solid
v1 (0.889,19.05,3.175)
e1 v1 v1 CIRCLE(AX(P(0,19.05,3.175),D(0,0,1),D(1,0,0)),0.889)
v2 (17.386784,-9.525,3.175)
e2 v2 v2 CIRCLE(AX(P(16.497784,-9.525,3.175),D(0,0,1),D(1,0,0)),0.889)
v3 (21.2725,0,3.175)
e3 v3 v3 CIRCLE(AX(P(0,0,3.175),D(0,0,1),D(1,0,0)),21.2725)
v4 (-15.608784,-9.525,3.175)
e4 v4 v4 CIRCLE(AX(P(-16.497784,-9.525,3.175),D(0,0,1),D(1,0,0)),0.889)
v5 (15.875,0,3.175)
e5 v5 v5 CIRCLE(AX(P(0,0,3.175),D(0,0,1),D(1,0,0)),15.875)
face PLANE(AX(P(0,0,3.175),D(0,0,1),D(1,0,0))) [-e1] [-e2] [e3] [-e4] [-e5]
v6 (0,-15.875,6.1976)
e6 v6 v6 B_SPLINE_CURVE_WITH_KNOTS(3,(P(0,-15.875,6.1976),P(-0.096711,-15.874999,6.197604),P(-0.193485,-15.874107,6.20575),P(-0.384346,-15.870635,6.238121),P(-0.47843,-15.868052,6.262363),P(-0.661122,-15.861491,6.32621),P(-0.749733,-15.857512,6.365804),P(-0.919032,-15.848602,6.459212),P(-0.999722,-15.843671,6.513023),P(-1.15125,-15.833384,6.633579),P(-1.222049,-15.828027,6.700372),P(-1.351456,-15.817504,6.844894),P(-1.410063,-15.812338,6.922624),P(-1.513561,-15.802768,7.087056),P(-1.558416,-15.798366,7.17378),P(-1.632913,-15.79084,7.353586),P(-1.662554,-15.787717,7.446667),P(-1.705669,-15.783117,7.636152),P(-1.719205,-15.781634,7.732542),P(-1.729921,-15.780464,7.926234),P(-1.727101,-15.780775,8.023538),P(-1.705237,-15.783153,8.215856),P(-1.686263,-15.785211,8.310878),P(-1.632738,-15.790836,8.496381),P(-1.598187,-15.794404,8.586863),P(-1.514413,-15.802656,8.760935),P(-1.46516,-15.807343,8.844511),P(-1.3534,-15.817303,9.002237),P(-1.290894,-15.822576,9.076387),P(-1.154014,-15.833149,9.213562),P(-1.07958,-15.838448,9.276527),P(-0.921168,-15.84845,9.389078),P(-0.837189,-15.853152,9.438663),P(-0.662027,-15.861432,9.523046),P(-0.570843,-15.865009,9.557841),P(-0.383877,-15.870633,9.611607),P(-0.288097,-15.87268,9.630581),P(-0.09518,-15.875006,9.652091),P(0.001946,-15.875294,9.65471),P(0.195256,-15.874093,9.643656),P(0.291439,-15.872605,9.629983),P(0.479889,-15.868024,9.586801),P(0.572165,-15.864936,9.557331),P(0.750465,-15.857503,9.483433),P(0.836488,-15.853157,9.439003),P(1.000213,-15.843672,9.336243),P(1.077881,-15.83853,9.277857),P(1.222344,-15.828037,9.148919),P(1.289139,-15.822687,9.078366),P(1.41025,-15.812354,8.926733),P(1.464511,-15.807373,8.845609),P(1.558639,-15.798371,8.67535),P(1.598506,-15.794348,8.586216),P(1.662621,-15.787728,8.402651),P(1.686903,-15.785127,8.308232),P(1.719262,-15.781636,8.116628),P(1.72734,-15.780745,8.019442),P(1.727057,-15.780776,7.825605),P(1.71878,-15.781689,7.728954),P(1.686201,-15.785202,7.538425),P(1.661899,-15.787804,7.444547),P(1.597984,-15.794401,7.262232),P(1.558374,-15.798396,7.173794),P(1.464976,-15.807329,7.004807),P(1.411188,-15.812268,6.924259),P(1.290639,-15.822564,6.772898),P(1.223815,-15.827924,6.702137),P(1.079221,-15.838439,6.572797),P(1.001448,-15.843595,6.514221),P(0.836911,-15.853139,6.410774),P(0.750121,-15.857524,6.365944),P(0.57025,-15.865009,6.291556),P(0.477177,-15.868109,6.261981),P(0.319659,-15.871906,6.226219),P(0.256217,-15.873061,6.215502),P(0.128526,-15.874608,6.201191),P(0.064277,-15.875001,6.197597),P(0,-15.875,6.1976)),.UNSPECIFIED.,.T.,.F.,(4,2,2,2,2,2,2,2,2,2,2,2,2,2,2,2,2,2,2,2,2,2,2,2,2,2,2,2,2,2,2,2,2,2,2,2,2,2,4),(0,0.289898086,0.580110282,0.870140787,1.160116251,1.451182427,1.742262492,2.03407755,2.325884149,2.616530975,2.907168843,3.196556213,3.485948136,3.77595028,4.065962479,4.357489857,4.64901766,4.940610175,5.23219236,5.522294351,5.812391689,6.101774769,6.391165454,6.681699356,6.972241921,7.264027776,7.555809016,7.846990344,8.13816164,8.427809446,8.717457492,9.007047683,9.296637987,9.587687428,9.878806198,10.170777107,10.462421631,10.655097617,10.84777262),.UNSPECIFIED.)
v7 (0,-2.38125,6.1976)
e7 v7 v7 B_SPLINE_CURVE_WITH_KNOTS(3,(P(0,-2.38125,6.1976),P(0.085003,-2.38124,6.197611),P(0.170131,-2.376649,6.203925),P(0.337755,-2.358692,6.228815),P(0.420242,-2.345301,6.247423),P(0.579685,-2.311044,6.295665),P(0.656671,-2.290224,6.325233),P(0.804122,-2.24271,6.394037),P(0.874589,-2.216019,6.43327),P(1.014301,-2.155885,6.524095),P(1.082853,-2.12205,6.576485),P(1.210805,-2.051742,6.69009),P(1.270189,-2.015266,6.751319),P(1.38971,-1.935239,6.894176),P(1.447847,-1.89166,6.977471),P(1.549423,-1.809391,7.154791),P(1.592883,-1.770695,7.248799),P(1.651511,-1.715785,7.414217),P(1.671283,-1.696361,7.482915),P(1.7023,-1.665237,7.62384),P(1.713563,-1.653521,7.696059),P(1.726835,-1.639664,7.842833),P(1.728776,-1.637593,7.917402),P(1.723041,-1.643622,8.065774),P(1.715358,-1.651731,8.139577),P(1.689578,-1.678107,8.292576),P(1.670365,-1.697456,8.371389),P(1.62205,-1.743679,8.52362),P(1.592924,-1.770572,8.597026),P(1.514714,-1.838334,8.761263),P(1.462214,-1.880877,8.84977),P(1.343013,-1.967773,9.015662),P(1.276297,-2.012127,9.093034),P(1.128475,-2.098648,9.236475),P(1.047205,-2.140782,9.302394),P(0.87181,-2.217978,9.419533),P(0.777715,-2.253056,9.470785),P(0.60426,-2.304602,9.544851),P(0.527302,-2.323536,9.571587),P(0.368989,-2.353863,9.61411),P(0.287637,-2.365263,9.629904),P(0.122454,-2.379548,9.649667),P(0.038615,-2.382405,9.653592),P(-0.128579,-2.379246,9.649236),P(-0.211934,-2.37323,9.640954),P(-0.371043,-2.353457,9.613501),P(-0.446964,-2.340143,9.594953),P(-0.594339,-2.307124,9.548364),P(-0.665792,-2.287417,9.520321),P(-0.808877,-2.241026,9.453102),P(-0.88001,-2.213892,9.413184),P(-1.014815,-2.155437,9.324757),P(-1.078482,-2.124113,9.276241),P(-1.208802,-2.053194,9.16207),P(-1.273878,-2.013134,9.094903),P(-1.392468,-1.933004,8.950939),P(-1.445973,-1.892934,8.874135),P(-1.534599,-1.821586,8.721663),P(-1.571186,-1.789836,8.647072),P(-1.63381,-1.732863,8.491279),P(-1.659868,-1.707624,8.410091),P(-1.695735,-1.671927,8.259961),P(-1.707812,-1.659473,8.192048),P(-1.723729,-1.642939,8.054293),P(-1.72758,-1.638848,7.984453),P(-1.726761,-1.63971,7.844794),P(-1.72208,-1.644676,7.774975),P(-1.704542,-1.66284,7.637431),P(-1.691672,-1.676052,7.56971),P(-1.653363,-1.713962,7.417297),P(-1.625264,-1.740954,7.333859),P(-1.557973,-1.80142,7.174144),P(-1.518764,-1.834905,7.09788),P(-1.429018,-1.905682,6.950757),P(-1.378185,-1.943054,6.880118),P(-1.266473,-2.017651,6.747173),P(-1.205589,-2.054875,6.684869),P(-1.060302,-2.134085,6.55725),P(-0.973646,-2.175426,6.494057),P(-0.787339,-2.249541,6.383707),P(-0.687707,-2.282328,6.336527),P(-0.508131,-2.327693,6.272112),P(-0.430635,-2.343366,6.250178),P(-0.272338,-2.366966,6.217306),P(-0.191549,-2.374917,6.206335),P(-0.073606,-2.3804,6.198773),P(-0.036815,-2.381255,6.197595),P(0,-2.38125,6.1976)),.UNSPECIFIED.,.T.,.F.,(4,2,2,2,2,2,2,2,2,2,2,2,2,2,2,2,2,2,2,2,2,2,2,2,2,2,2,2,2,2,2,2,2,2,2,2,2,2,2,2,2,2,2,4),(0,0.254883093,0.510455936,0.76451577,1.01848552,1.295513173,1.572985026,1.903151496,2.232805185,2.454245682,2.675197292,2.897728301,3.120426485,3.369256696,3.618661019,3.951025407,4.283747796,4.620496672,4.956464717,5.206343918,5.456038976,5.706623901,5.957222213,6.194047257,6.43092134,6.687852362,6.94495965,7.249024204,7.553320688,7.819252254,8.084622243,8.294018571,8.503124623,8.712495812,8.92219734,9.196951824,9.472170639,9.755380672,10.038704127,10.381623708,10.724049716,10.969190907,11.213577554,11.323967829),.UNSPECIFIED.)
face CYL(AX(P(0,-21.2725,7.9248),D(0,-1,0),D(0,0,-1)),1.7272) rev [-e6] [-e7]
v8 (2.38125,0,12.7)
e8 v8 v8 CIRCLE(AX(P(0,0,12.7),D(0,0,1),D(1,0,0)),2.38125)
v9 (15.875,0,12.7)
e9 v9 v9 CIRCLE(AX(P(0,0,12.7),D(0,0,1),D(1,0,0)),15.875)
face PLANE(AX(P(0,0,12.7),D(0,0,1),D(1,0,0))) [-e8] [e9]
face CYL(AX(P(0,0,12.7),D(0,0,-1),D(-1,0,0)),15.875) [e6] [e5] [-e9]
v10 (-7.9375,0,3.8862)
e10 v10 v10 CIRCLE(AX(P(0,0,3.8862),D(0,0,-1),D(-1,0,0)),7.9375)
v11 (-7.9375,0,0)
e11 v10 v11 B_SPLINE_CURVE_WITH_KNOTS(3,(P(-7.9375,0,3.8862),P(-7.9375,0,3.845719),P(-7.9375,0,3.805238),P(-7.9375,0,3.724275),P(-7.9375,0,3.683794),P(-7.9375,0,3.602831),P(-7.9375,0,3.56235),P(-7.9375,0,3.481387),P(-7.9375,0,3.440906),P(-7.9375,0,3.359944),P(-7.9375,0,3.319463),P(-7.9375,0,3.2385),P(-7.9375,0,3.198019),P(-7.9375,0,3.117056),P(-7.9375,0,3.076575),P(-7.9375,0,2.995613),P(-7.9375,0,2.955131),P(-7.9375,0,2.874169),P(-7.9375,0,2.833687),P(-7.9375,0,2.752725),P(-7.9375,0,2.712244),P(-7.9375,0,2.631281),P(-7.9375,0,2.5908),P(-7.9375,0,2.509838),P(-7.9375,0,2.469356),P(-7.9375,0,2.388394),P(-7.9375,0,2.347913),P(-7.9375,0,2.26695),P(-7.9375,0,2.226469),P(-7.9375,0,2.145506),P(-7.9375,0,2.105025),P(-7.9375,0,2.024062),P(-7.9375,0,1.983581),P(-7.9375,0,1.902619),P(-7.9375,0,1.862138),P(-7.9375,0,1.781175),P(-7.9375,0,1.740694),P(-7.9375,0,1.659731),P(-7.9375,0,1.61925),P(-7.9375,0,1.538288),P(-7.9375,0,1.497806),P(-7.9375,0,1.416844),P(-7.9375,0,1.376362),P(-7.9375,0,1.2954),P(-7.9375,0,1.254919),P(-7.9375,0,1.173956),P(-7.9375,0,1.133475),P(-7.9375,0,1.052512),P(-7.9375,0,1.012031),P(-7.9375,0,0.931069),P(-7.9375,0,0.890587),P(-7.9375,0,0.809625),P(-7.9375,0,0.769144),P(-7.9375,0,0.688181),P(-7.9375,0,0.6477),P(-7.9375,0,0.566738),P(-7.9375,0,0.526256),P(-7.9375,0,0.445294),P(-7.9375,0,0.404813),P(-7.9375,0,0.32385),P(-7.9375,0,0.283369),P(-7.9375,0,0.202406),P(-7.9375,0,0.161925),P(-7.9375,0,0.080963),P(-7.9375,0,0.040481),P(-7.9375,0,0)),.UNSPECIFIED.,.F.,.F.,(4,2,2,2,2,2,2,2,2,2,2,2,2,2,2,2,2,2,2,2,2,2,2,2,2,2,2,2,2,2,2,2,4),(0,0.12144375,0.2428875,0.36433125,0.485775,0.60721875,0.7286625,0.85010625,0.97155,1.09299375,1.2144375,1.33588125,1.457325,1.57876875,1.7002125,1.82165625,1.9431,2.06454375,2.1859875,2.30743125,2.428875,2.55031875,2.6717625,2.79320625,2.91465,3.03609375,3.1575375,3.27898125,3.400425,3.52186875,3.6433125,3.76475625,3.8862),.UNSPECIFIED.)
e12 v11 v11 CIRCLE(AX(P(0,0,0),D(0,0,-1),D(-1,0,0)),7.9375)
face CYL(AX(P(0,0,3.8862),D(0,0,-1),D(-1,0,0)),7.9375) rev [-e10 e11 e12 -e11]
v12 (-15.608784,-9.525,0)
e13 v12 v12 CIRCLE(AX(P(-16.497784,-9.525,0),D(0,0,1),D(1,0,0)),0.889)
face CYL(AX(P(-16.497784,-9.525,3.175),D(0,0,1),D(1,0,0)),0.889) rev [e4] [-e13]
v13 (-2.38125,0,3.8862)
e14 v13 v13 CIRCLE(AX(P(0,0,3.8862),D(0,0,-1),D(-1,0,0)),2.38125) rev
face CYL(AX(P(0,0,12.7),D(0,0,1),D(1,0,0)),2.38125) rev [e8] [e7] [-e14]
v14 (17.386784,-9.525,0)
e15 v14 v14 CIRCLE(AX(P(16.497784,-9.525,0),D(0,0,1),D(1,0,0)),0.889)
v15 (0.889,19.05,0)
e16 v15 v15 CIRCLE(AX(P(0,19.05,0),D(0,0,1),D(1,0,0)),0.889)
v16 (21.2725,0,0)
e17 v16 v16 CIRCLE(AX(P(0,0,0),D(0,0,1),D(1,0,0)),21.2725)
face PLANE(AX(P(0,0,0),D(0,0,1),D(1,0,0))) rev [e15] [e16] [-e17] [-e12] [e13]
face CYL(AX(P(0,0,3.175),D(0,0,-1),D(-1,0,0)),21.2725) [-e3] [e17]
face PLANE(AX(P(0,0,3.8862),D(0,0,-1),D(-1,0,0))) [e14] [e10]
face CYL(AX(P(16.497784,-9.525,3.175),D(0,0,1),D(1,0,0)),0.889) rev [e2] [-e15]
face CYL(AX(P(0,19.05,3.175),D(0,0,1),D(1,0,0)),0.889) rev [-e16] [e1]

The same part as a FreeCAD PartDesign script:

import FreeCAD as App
import Part
import Sketcher

V = App.Vector
Q = App.Units.Quantity

doc = App.newDocument("Part")
body = doc.addObject("PartDesign::Body", "Body")

# Sketch on XY plane
sketch1 = body.newObject("Sketcher::SketchObject", "Sketch")
sketch1.AttachmentSupport = (doc.getObject("XY_Plane"), [""])
sketch1.MapMode = "FlatFace"
sketch1.addGeometry(Part.Circle(V(0, 0, 0), V(0, 0, 1), 21.2725), False)
sketch1.addConstraint(Sketcher.Constraint("Coincident", 0, 3, -1, 1))
sketch1.addConstraint(Sketcher.Constraint("Diameter", 0, Q("1.675 in")))
pad1 = body.newObject("PartDesign::Pad", "Pad")
pad1.Profile = sketch1
pad1.Length = Q("0.125 in")

# Sketch on XY plane
sketch2 = body.newObject("Sketcher::SketchObject", "Sketch001")
sketch2.AttachmentSupport = (doc.getObject("XY_Plane"), [""])
sketch2.MapMode = "FlatFace"
sketch2.AttachmentOffset = App.Placement(V(0, 0, 0.125 * 25.4), App.Rotation())
sketch2.addGeometry(Part.Circle(V(0, 0, 0), V(0, 0, 1), 15.875), False)
sketch2.addConstraint(Sketcher.Constraint("Coincident", 0, 3, -1, 1))
sketch2.addConstraint(Sketcher.Constraint("Diameter", 0, Q("1.25 in")))
pad2 = body.newObject("PartDesign::Pad", "Pad001")
pad2.Profile = sketch2
pad2.Length = Q("0.375 in")

# Sketch on XY plane
sketch3 = body.newObject("Sketcher::SketchObject", "Sketch002")
sketch3.AttachmentSupport = (doc.getObject("XY_Plane"), [""])
sketch3.MapMode = "FlatFace"
sketch3.AttachmentOffset = App.Placement(V(0, 0, 0.5 * 25.4), App.Rotation())
sketch3.addGeometry(Part.Circle(V(0, 0, 0), V(0, 0, 1), 2.38125), False)
sketch3.addConstraint(Sketcher.Constraint("Coincident", 0, 3, -1, 1))
sketch3.addConstraint(Sketcher.Constraint("Diameter", 0, Q("0.1875 in")))
doc.recompute()
hole = body.newObject("PartDesign::Hole", "Hole")
hole.Profile = sketch3
hole.ThreadType = "None"
hole.Diameter = Q("0.1875 in")
hole.DepthType = "ThroughAll"

# Sketch on XY plane
sketch4 = body.newObject("Sketcher::SketchObject", "Sketch003")
sketch4.AttachmentSupport = (doc.getObject("XY_Plane"), [""])
sketch4.MapMode = "FlatFace"
sketch4.AttachmentOffset = App.Placement(V(0, 0, 0.125 * 25.4), App.Rotation())
sketch4.addGeometry(Part.Circle(V(0, 19.05, 0), V(0, 0, 1), 0.889), False)
sketch4.addConstraint(Sketcher.Constraint("PointOnObject", 0, 3, -2))
sketch4.addConstraint(Sketcher.Constraint("Diameter", 0, Q("0.07 in")))
sketch4.addConstraint(Sketcher.Constraint("DistanceY", -1, 1, 0, 3, Q("0.75 in")))
doc.recompute()
hole2 = body.newObject("PartDesign::Hole", "Hole001")
hole2.Profile = sketch4
hole2.ThreadType = "None"
hole2.Diameter = Q("0.07 in")
hole2.DepthType = "ThroughAll"
doc.recompute()

polarpattern = body.newObject("PartDesign::PolarPattern", "PolarPattern")
polarpattern.Originals = [hole2]
polarpattern.Axis = (doc.getObject("Z_Axis"), [""])
polarpattern.Angle = 360
polarpattern.Occurrences = 3
body.Tip = polarpattern

# Sketch on XZ plane
sketch5 = body.newObject("Sketcher::SketchObject", "Sketch004")
sketch5.AttachmentSupport = (doc.getObject("XZ_Plane"), [""])
sketch5.MapMode = "FlatFace"
sketch5.AttachmentOffset = App.Placement(V(0, 0, 0.8375 * 25.4), App.Rotation())
sketch5.addGeometry(Part.Circle(V(0, 7.9248, 0), V(0, 0, 1), 1.7272), False)
sketch5.addConstraint(Sketcher.Constraint("PointOnObject", 0, 3, -2))
sketch5.addConstraint(Sketcher.Constraint("Diameter", 0, Q("0.136 in")))
sketch5.addConstraint(Sketcher.Constraint("DistanceY", -1, 1, 0, 3, Q("0.312 in")))
doc.recompute()
hole3 = body.newObject("PartDesign::Hole", "Hole002")
hole3.Profile = sketch5
hole3.ThreadType = "None"
hole3.Diameter = Q("0.136 in")
hole3.DepthType = "Dimension"
hole3.Depth = 21.2715
hole3.DrillPoint = "Angled"
hole3.DrillPointAngle = 118

# Sketch on XY plane
sketch6 = body.newObject("Sketcher::SketchObject", "Sketch005")
sketch6.AttachmentSupport = (doc.getObject("XY_Plane"), [""])
sketch6.MapMode = "FlatFace"
sketch6.addGeometry(Part.Circle(V(0, 0, 0), V(0, 0, 1), 7.9375), False)
sketch6.addConstraint(Sketcher.Constraint("Coincident", 0, 3, -1, 1))
sketch6.addConstraint(Sketcher.Constraint("Diameter", 0, Q("0.625 in")))
pocket1 = body.newObject("PartDesign::Pocket", "Pocket")
pocket1.Profile = sketch6
pocket1.Length = Q("0.153 in")
pocket1.Reversed = True

doc.recompute()
